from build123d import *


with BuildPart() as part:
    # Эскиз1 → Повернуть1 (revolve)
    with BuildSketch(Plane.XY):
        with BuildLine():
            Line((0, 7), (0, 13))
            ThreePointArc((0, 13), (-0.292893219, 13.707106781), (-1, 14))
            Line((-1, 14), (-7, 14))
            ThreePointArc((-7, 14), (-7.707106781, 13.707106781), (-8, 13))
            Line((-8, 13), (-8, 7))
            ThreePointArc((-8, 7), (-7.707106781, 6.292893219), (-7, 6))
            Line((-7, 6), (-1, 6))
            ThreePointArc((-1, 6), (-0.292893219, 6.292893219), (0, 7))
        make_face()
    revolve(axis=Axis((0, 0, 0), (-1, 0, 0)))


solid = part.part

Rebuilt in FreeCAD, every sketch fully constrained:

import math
import FreeCAD as App
import Part
import Sketcher
from FreeCAD import Vector

doc = App.newDocument("Part")
body = doc.addObject("PartDesign::Body", "Body")

# Sketch on XY plane
sketch1 = body.newObject("Sketcher::SketchObject", "Sketch")
sketch1.AttachmentSupport = (doc.getObject("XY_Plane"), [""])
sketch1.MapMode = "FlatFace"
sketch1.addGeometry([
    Part.LineSegment(Vector(0, 7, 0), Vector(0, 13, 0)),  # 0
    Part.ArcOfCircle(Part.Circle(Vector(-1, 13, 0), Vector(0, 0, 1), 1), math.radians(0), math.radians(90)),  # 1
    Part.LineSegment(Vector(-1, 14, 0), Vector(-7, 14, 0)),  # 2
    Part.ArcOfCircle(Part.Circle(Vector(-7, 13, 0), Vector(0, 0, 1), 1), math.radians(90), math.radians(180)),  # 3
    Part.LineSegment(Vector(-8, 13, 0), Vector(-8, 7, 0)),  # 4
    Part.ArcOfCircle(Part.Circle(Vector(-7, 7, 0), Vector(0, 0, 1), 1), math.radians(-180), math.radians(-90)),  # 5
    Part.LineSegment(Vector(-7, 6, 0), Vector(-1, 6, 0)),  # 6
    Part.ArcOfCircle(Part.Circle(Vector(-1, 7, 0), Vector(0, 0, 1), 1), math.radians(-90), math.radians(0)),  # 7
], False)
sketch1.addConstraint([
    Sketcher.Constraint("Tangent", 0, 2, 1, 1),
    Sketcher.Constraint("Tangent", 1, 2, 2, 1),
    Sketcher.Constraint("Tangent", 2, 2, 3, 1),
    Sketcher.Constraint("Tangent", 3, 2, 4, 1),
    Sketcher.Constraint("Tangent", 4, 2, 5, 1),
    Sketcher.Constraint("Tangent", 5, 2, 6, 1),
    Sketcher.Constraint("Tangent", 6, 2, 7, 1),
    Sketcher.Constraint("Tangent", 7, 2, 0, 1),
    Sketcher.Constraint("Vertical", 0),
    Sketcher.Constraint("Horizontal", 2),
    Sketcher.Constraint("Vertical", 4),
    Sketcher.Constraint("Horizontal", 6),
    Sketcher.Constraint("Equal", 1, 3),
    Sketcher.Constraint("Equal", 3, 5),
    Sketcher.Constraint("Equal", 5, 7),
    Sketcher.Constraint("PointOnObject", 0, 2, -2),
    Sketcher.Constraint("Equal", 6, 0),
    Sketcher.Constraint("Radius", 1, 1.0),
    Sketcher.Constraint("DistanceX", 2, 2, 2, 1, 6.0),
    Sketcher.Constraint("DistanceY", -1, 1, 1, 3, 13.0),
])
revolution = body.newObject("PartDesign::Revolution", "Revolution")
revolution.Profile = sketch1
revolution.ReferenceAxis = (sketch1, ["H_Axis"])
revolution.Angle = 360

doc.recompute()
